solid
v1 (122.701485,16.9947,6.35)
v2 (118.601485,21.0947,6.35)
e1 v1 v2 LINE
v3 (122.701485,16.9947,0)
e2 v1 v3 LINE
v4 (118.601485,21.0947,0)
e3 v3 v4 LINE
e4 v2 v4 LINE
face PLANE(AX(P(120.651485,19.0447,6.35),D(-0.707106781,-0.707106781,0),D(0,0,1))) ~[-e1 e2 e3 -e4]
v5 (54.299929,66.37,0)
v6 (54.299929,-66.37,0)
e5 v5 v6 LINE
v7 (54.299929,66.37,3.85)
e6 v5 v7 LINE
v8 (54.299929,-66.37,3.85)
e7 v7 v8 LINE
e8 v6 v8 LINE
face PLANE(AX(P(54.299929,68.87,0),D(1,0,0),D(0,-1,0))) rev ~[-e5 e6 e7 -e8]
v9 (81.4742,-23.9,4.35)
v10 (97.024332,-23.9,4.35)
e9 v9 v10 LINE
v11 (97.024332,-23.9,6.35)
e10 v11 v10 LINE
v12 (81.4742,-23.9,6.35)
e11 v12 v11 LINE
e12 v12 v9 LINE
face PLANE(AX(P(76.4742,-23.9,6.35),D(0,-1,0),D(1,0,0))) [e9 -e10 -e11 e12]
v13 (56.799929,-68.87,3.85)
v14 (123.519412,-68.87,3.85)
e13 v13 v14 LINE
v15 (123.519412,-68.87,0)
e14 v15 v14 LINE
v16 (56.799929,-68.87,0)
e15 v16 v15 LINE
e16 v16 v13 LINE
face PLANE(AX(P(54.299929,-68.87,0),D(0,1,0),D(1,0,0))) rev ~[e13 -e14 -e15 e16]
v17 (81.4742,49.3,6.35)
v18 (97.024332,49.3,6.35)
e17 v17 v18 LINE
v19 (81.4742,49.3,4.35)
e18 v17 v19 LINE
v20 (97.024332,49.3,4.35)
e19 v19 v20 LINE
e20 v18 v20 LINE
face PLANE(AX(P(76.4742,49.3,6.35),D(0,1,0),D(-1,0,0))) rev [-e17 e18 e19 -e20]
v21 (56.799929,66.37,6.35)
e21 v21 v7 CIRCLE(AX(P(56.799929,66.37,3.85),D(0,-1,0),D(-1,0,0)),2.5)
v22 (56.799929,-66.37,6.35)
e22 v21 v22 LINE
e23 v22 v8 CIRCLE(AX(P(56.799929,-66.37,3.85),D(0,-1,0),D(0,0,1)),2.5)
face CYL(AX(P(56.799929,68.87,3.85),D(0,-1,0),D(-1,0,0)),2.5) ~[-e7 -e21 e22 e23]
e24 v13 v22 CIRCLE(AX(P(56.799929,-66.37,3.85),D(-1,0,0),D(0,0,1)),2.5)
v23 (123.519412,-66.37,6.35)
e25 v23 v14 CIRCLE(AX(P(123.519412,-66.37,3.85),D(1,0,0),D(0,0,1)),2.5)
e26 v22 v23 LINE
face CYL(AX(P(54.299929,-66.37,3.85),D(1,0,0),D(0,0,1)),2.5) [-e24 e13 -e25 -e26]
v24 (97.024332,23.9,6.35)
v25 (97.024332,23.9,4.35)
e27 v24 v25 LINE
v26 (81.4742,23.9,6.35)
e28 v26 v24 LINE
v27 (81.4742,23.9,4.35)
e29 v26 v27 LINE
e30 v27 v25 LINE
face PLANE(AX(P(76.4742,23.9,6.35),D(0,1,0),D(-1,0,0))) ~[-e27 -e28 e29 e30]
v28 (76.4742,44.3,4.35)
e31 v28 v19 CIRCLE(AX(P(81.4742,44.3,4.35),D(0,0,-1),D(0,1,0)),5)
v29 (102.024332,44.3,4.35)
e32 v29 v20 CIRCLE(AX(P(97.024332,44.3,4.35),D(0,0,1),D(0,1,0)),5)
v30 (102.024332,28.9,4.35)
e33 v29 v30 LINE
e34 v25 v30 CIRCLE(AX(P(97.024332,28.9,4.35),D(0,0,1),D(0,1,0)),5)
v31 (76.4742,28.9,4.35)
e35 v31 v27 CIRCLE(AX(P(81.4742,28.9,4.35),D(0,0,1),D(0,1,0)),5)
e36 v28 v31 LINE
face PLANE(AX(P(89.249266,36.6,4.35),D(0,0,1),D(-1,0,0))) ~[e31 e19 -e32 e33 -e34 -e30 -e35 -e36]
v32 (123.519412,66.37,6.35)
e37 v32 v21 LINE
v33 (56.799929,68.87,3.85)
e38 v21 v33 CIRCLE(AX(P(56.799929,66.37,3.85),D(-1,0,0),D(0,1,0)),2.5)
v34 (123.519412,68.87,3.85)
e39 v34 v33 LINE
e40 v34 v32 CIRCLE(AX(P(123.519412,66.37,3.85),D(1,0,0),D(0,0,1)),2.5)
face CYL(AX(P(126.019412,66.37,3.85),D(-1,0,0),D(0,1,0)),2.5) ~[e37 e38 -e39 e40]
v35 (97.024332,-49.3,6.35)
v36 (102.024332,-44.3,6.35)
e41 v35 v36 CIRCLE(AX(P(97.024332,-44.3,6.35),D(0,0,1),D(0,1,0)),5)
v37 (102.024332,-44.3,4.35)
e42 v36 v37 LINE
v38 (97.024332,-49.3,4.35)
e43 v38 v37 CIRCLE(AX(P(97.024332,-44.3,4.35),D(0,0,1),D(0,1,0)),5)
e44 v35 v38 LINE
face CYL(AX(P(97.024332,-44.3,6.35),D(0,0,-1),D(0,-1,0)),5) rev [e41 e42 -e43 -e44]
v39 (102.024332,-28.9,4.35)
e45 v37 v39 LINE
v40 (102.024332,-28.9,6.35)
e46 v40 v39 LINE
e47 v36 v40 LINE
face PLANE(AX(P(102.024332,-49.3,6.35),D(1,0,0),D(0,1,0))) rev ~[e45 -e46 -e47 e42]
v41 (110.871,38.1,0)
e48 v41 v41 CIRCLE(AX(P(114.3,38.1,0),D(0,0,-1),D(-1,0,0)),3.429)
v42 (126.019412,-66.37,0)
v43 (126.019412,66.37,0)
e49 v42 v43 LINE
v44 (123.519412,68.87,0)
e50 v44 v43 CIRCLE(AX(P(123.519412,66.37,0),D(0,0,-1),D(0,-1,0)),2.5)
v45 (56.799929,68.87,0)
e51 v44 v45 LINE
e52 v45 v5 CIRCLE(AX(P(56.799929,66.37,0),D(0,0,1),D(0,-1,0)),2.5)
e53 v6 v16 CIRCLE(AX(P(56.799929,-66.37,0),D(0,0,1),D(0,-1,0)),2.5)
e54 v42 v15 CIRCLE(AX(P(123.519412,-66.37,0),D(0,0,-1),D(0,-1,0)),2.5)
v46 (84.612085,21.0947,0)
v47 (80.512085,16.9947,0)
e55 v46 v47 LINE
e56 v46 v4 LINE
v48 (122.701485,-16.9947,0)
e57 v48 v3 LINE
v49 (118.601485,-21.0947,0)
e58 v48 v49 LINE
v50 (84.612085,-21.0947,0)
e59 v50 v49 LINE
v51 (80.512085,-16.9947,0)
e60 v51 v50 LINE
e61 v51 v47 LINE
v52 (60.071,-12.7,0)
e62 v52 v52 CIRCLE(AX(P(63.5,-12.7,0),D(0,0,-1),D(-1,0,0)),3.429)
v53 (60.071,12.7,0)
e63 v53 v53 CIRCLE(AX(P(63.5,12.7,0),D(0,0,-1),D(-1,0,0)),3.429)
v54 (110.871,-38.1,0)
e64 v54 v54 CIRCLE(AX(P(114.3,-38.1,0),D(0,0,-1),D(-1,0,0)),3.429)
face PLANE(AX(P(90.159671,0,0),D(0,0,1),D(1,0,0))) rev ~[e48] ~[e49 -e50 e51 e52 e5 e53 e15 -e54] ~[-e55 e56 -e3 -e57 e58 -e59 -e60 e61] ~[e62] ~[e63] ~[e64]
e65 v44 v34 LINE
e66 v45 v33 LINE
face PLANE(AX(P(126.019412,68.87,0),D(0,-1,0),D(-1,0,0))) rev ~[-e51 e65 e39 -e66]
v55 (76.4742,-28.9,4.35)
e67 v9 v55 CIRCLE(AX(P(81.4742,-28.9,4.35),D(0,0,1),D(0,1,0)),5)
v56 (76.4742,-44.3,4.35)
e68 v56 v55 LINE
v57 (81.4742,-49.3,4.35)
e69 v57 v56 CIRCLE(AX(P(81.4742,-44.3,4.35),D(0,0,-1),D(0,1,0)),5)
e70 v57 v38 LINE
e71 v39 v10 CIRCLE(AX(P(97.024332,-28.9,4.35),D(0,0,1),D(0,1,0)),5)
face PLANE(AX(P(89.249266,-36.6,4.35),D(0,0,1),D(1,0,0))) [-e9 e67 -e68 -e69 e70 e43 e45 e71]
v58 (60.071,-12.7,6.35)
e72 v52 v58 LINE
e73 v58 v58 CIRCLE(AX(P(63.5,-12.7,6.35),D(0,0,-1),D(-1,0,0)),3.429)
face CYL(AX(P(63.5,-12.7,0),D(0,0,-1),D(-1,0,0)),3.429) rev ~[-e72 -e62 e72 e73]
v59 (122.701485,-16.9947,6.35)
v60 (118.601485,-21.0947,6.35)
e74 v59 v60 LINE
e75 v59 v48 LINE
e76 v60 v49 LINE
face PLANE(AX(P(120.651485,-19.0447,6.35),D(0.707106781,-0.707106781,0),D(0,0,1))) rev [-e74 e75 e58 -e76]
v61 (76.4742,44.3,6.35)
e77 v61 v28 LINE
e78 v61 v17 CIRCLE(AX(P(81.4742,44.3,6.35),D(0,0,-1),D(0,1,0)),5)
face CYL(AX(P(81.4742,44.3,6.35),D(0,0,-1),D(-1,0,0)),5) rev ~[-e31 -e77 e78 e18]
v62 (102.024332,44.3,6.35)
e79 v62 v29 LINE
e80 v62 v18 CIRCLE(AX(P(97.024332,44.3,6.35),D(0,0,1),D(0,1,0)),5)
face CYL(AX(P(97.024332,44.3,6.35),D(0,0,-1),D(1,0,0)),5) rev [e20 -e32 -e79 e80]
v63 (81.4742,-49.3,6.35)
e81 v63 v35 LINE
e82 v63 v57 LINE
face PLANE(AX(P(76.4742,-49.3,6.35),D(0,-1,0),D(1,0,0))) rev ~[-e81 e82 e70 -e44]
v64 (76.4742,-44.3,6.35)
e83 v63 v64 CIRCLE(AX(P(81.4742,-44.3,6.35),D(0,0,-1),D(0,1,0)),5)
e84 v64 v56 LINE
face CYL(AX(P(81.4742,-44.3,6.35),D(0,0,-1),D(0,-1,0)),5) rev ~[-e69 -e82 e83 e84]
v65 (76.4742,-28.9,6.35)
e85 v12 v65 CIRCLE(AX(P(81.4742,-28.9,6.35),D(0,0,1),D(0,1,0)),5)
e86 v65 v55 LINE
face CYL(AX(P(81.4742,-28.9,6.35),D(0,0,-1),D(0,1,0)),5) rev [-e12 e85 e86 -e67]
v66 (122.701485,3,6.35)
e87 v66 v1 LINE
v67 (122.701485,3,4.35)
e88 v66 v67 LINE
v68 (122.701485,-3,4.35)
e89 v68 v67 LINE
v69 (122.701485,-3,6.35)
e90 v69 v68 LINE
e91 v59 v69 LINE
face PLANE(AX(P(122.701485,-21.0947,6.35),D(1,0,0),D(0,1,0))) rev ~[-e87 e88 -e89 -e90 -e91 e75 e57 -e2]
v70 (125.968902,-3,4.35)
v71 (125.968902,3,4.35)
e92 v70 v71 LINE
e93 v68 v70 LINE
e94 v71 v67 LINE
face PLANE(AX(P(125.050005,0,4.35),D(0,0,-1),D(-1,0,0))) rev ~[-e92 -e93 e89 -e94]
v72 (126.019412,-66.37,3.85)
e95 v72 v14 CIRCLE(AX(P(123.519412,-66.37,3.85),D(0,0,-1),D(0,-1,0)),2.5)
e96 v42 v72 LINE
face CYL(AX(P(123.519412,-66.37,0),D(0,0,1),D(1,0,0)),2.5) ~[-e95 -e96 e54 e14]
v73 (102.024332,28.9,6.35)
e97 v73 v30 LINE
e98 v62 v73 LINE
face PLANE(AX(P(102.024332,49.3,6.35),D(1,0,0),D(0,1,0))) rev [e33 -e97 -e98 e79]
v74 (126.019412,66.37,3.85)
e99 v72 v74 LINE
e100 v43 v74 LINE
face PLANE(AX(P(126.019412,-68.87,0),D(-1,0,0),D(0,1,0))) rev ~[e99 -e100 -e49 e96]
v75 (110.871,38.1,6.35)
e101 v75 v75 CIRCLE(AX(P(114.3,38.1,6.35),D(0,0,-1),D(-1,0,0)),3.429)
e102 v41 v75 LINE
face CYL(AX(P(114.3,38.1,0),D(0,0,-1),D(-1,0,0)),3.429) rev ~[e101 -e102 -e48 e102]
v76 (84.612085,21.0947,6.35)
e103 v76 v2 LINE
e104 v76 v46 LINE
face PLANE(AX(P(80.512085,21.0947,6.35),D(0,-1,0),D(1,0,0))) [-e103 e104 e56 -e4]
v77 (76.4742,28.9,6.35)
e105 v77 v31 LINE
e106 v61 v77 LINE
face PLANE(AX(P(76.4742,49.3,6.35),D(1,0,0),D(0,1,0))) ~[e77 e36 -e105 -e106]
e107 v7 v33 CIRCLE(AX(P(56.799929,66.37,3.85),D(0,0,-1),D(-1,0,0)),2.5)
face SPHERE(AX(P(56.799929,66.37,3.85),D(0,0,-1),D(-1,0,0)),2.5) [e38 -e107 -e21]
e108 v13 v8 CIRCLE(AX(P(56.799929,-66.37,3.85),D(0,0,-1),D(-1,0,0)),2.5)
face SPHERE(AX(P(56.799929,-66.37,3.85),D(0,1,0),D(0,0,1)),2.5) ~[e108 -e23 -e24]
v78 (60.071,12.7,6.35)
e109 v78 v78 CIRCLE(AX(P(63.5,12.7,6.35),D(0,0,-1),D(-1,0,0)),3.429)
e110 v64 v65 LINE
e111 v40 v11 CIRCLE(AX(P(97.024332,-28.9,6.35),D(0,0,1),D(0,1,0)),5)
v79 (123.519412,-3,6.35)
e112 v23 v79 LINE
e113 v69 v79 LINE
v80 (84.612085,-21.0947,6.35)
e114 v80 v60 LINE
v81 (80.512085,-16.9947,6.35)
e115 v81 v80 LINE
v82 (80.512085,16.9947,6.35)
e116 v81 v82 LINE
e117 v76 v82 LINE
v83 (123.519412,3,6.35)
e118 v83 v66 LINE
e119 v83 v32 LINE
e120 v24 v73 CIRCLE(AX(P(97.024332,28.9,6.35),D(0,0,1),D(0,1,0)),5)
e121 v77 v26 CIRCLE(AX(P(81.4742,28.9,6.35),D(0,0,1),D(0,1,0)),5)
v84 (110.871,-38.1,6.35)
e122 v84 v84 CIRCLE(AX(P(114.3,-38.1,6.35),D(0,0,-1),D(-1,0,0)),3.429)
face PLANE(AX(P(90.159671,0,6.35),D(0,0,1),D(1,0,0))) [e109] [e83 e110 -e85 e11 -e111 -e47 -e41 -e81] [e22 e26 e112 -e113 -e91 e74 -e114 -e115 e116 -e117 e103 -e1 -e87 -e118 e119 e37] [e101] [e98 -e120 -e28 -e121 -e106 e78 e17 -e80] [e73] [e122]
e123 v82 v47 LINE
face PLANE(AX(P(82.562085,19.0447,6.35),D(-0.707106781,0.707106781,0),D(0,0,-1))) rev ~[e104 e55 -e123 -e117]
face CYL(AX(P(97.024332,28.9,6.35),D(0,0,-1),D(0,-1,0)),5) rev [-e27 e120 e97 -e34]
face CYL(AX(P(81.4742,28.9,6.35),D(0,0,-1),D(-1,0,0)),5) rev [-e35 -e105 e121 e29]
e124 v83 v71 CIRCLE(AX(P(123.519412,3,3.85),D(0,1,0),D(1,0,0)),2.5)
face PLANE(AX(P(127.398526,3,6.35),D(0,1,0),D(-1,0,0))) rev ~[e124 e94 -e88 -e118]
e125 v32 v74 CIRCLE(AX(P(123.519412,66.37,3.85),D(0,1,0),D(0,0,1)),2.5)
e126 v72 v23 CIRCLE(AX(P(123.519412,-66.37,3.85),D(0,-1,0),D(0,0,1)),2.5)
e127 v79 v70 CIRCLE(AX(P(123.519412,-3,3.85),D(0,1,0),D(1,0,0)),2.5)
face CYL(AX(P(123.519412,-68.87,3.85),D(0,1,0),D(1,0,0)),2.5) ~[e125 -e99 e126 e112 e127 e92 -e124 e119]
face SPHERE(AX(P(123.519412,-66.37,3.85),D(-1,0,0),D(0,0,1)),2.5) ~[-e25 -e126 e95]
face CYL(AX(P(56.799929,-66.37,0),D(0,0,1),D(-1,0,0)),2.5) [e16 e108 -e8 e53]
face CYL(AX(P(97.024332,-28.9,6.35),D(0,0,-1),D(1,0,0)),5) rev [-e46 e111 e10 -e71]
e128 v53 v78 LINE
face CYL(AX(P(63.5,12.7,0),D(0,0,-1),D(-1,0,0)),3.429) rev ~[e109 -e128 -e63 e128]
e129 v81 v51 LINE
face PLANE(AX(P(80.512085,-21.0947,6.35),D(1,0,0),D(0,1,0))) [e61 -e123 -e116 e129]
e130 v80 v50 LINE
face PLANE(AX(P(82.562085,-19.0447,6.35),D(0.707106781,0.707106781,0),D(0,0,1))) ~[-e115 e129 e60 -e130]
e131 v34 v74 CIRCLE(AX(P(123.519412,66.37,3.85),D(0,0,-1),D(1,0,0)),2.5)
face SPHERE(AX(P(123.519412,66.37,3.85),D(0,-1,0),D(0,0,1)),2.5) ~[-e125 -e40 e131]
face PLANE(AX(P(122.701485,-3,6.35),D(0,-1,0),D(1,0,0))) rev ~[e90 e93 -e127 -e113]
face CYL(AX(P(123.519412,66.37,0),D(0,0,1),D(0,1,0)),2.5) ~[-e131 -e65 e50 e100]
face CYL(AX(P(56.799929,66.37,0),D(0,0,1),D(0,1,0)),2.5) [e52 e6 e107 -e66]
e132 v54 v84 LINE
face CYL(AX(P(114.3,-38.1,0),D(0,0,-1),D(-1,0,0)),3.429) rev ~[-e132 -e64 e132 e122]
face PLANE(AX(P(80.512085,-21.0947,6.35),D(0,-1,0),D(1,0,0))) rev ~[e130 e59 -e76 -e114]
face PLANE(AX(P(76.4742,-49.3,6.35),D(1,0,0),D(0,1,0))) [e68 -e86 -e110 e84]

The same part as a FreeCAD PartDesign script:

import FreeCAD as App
import Part
import Sketcher


def edges_at(feature, points):
    """Names of the edges that pass closest to the given points."""
    edges = feature.Shape.Edges
    near = lambda p: min(range(len(edges)), key=lambda i: edges[i].distToShape(Part.Vertex(*p))[0])
    return sorted({f"Edge{near(p) + 1}" for p in points})


def add_polygon(sketch, points):
    """Adds a closed chain of lines whose ends are joined by coincident constraints."""
    first, n = sketch.GeometryCount, len(points)
    for a, b in zip(points, points[1:] + points[:1]):
        sketch.addGeometry(Part.LineSegment(App.Vector(*a, 0), App.Vector(*b, 0)), False)
    for i in range(n):
        sketch.addConstraint(Sketcher.Constraint("Coincident", first + i, 2, first + (i + 1) % n, 1))

doc = App.newDocument("Part")
body = doc.addObject("PartDesign::Body", "Body")

# Sketch on XY plane
sketch1 = body.newObject("Sketcher::SketchObject", "Sketch")
sketch1.AttachmentSupport = (doc.getObject("XY_Plane"), [""])
sketch1.MapMode = "FlatFace"
add_polygon(sketch1, [(126.019412, 68.87), (54.299929, 68.87), (54.299929, -68.87), (126.019412, -68.87)])  # lines 0-3
sketch1.addConstraint(Sketcher.Constraint("Horizontal", 0))
sketch1.addConstraint(Sketcher.Constraint("Vertical", 1))
sketch1.addConstraint(Sketcher.Constraint("Horizontal", 2))
sketch1.addConstraint(Sketcher.Constraint("Vertical", 3))
sketch1.addConstraint(Sketcher.Constraint("DistanceY", 1, 2, 1, 1, 137.74))
sketch1.addConstraint(Sketcher.Constraint("DistanceY", -1, 1, 0, 2, 68.87))
sketch1.addConstraint(Sketcher.Constraint("DistanceX", 0, 2, 0, 1, 71.719483))
sketch1.addConstraint(Sketcher.Constraint("DistanceX", -1, 1, 0, 2, 54.299929))
pad1 = body.newObject("PartDesign::Pad", "Pad")
pad1.Profile = sketch1
pad1.Length = 6.35

# Sketch on XY plane
sketch2 = body.newObject("Sketcher::SketchObject", "Sketch001")
sketch2.AttachmentSupport = (doc.getObject("XY_Plane"), [""])
sketch2.MapMode = "FlatFace"
sketch2.addGeometry(Part.Circle(App.Vector(63.5, 12.7, 0), App.Vector(0, 0, 1), 3.429), False)
sketch2.addGeometry(Part.Circle(App.Vector(114.3, 38.1, 0), App.Vector(0, 0, 1), 3.429), False)
sketch2.addGeometry(Part.Circle(App.Vector(114.3, -38.1, 0), App.Vector(0, 0, 1), 3.429), False)
sketch2.addGeometry(Part.Circle(App.Vector(63.5, -12.7, 0), App.Vector(0, 0, 1), 3.429), False)
sketch2.addConstraint(Sketcher.Constraint("Equal", 0, 1))
sketch2.addConstraint(Sketcher.Constraint("Equal", 1, 2))
sketch2.addConstraint(Sketcher.Constraint("Equal", 2, 3))
sketch2.addConstraint(Sketcher.Constraint("Symmetric", 1, 3, 2, 3, -1))
sketch2.addConstraint(Sketcher.Constraint("Symmetric", 0, 3, 3, 3, -1))
sketch2.addConstraint(Sketcher.Constraint("Diameter", 0, 6.858))
sketch2.addConstraint(Sketcher.Constraint("DistanceX", -1, 1, 0, 3, 63.5))
sketch2.addConstraint(Sketcher.Constraint("DistanceY", -1, 1, 0, 3, 12.7))
sketch2.addConstraint(Sketcher.Constraint("DistanceX", -1, 1, 1, 3, 114.3))
sketch2.addConstraint(Sketcher.Constraint("DistanceY", -1, 1, 1, 3, 38.1))
pocket1 = body.newObject("PartDesign::Pocket", "Pocket")
pocket1.Profile = sketch2
pocket1.Length = 6.35
pocket1.Reversed = True
doc.recompute()

fillet = body.newObject("PartDesign::Fillet", "Fillet")
fillet.Base = (pocket1, edges_at(pocket1, [
    (54.3, 68.87, 3.175),
    (54.3, 0, 6.35),
    (90.16, -68.87, 6.35),
    (126.019, 0, 6.35),
    (90.16, 68.87, 6.35),
    (126.019, 68.87, 3.175),
    (126.019, -68.87, 3.175),
    (54.3, -68.87, 3.175),
]))
fillet.Radius = 2.5

# Sketch on XY plane
sketch3 = body.newObject("Sketcher::SketchObject", "Sketch002")
sketch3.AttachmentSupport = (doc.getObject("XY_Plane"), [""])
sketch3.MapMode = "FlatFace"
sketch3.AttachmentOffset = App.Placement(App.Vector(0, 0, 6.35), App.Rotation())
sketch3.addGeometry(Part.Circle(App.Vector(90.159671, 0, 0), App.Vector(0, 0, 1), 3.43), False)
sketch3.addConstraint(Sketcher.Constraint("PointOnObject", 0, 3, -1))
sketch3.addConstraint(Sketcher.Constraint("Diameter", 0, 6.86))
sketch3.addConstraint(Sketcher.Constraint("DistanceX", -1, 1, 0, 3, 90.159671))
pocket2 = body.newObject("PartDesign::Pocket", "Pocket001")
pocket2.Profile = sketch3
pocket2.Type = "ThroughAll"

# Sketch on XY plane
sketch4 = body.newObject("Sketcher::SketchObject", "Sketch003")
sketch4.AttachmentSupport = (doc.getObject("XY_Plane"), [""])
sketch4.MapMode = "FlatFace"
sketch4.AttachmentOffset = App.Placement(App.Vector(0, 0, 6.35), App.Rotation())
add_polygon(sketch4, [(80.512085, 21.0947), (80.512085, -21.0947), (122.701485, -21.0947), (122.701485, 21.0947)])  # lines 0-3
sketch4.addConstraint(Sketcher.Constraint("Vertical", 0))
sketch4.addConstraint(Sketcher.Constraint("Horizontal", 1))
sketch4.addConstraint(Sketcher.Constraint("Vertical", 2))
sketch4.addConstraint(Sketcher.Constraint("Horizontal", 3))
sketch4.addConstraint(Sketcher.Constraint("Equal", 3, 0))
sketch4.addConstraint(Sketcher.Constraint("DistanceX", 1, 1, 1, 2, 42.1894))
sketch4.addConstraint(Sketcher.Constraint("DistanceY", 0, 2, -1, 1, 21.0947))
sketch4.addConstraint(Sketcher.Constraint("DistanceX", -1, 1, 0, 2, 80.512085))
pocket3 = body.newObject("PartDesign::Pocket", "Pocket002")
pocket3.Profile = sketch4
pocket3.Type = "ThroughAll"

# Sketch on XY plane
sketch5 = body.newObject("Sketcher::SketchObject", "Sketch004")
sketch5.AttachmentSupport = (doc.getObject("XY_Plane"), [""])
sketch5.MapMode = "FlatFace"
sketch5.AttachmentOffset = App.Placement(App.Vector(0, 0, 6.35), App.Rotation())
add_polygon(sketch5, [(122.701485, -3), (127.398526, -3), (127.398526, 3), (122.701485, 3)])  # lines 0-3
sketch5.addConstraint(Sketcher.Constraint("Horizontal", 0))
sketch5.addConstraint(Sketcher.Constraint("Vertical", 1))
sketch5.addConstraint(Sketcher.Constraint("Horizontal", 2))
sketch5.addConstraint(Sketcher.Constraint("Vertical", 3))
sketch5.addConstraint(Sketcher.Constraint("DistanceY", 1, 1, 1, 2, 6.0))
sketch5.addConstraint(Sketcher.Constraint("DistanceY", 0, 2, -1, 1, 3.0))
sketch5.addConstraint(Sketcher.Constraint("DistanceX", 0, 1, 0, 2, 4.697041))
sketch5.addConstraint(Sketcher.Constraint("DistanceX", -1, 1, 0, 2, 127.398526))
pocket4 = body.newObject("PartDesign::Pocket", "Pocket003")
pocket4.Profile = sketch5
pocket4.Length = 2

# Sketch on XY plane
sketch6 = body.newObject("Sketcher::SketchObject", "Sketch005")
sketch6.AttachmentSupport = (doc.getObject("XY_Plane"), [""])
sketch6.MapMode = "FlatFace"
sketch6.AttachmentOffset = App.Placement(App.Vector(0, 0, 6.35), App.Rotation())
add_polygon(sketch6, [(76.4742, -23.9), (76.4742, -49.3), (102.024332, -49.3), (102.024332, -23.9)])  # lines 0-3
sketch6.addConstraint(Sketcher.Constraint("Vertical", 0))
sketch6.addConstraint(Sketcher.Constraint("Horizontal", 1))
sketch6.addConstraint(Sketcher.Constraint("Vertical", 2))
sketch6.addConstraint(Sketcher.Constraint("Horizontal", 3))
sketch6.addConstraint(Sketcher.Constraint("DistanceY", 0, 2, 0, 1, 25.4))
sketch6.addConstraint(Sketcher.Constraint("DistanceY", 0, 2, -1, 1, 49.3))
sketch6.addConstraint(Sketcher.Constraint("DistanceX", -1, 1, 0, 2, 76.4742))
sketch6.addConstraint(Sketcher.Constraint("DistanceX", 1, 1, 1, 2, 25.550132))
pocket5 = body.newObject("PartDesign::Pocket", "Pocket004")
pocket5.Profile = sketch6
pocket5.Length = 2
doc.recompute()

fillet2 = body.newObject("PartDesign::Fillet", "Fillet001")
fillet2.Base = (pocket5, edges_at(pocket5, [
    (76.474, -49.3, 5.35),
    (76.474, -23.9, 5.35),
    (102.024, -23.9, 5.35),
    (102.024, -49.3, 5.35),
]))
fillet2.Radius = 5
doc.recompute()

mirrored = body.newObject("PartDesign::Mirrored", "Mirrored")
mirrored.Originals = [pocket5]
mirrored.MirrorPlane = (doc.getObject("XZ_Plane"), [""])
body.Tip = mirrored
doc.recompute()

fillet3 = body.newObject("PartDesign::Fillet", "Fillet002")
fillet3.Base = (mirrored, edges_at(mirrored, [
    (76.474, 49.3, 5.35),
    (76.474, 23.9, 5.35),
    (102.024, 23.9, 5.35),
    (102.024, 49.3, 5.35),
]))
fillet3.Radius = 5
doc.recompute()

chamfer = body.newObject("PartDesign::Chamfer", "Chamfer")
chamfer.Base = (fillet3, edges_at(fillet3, [
    (122.701, 21.095, 3.175),
    (122.701, -21.095, 3.175),
    (80.512, -21.095, 3.175),
    (80.512, 21.095, 3.175),
]))
chamfer.Size = 4.1

doc.recompute()
